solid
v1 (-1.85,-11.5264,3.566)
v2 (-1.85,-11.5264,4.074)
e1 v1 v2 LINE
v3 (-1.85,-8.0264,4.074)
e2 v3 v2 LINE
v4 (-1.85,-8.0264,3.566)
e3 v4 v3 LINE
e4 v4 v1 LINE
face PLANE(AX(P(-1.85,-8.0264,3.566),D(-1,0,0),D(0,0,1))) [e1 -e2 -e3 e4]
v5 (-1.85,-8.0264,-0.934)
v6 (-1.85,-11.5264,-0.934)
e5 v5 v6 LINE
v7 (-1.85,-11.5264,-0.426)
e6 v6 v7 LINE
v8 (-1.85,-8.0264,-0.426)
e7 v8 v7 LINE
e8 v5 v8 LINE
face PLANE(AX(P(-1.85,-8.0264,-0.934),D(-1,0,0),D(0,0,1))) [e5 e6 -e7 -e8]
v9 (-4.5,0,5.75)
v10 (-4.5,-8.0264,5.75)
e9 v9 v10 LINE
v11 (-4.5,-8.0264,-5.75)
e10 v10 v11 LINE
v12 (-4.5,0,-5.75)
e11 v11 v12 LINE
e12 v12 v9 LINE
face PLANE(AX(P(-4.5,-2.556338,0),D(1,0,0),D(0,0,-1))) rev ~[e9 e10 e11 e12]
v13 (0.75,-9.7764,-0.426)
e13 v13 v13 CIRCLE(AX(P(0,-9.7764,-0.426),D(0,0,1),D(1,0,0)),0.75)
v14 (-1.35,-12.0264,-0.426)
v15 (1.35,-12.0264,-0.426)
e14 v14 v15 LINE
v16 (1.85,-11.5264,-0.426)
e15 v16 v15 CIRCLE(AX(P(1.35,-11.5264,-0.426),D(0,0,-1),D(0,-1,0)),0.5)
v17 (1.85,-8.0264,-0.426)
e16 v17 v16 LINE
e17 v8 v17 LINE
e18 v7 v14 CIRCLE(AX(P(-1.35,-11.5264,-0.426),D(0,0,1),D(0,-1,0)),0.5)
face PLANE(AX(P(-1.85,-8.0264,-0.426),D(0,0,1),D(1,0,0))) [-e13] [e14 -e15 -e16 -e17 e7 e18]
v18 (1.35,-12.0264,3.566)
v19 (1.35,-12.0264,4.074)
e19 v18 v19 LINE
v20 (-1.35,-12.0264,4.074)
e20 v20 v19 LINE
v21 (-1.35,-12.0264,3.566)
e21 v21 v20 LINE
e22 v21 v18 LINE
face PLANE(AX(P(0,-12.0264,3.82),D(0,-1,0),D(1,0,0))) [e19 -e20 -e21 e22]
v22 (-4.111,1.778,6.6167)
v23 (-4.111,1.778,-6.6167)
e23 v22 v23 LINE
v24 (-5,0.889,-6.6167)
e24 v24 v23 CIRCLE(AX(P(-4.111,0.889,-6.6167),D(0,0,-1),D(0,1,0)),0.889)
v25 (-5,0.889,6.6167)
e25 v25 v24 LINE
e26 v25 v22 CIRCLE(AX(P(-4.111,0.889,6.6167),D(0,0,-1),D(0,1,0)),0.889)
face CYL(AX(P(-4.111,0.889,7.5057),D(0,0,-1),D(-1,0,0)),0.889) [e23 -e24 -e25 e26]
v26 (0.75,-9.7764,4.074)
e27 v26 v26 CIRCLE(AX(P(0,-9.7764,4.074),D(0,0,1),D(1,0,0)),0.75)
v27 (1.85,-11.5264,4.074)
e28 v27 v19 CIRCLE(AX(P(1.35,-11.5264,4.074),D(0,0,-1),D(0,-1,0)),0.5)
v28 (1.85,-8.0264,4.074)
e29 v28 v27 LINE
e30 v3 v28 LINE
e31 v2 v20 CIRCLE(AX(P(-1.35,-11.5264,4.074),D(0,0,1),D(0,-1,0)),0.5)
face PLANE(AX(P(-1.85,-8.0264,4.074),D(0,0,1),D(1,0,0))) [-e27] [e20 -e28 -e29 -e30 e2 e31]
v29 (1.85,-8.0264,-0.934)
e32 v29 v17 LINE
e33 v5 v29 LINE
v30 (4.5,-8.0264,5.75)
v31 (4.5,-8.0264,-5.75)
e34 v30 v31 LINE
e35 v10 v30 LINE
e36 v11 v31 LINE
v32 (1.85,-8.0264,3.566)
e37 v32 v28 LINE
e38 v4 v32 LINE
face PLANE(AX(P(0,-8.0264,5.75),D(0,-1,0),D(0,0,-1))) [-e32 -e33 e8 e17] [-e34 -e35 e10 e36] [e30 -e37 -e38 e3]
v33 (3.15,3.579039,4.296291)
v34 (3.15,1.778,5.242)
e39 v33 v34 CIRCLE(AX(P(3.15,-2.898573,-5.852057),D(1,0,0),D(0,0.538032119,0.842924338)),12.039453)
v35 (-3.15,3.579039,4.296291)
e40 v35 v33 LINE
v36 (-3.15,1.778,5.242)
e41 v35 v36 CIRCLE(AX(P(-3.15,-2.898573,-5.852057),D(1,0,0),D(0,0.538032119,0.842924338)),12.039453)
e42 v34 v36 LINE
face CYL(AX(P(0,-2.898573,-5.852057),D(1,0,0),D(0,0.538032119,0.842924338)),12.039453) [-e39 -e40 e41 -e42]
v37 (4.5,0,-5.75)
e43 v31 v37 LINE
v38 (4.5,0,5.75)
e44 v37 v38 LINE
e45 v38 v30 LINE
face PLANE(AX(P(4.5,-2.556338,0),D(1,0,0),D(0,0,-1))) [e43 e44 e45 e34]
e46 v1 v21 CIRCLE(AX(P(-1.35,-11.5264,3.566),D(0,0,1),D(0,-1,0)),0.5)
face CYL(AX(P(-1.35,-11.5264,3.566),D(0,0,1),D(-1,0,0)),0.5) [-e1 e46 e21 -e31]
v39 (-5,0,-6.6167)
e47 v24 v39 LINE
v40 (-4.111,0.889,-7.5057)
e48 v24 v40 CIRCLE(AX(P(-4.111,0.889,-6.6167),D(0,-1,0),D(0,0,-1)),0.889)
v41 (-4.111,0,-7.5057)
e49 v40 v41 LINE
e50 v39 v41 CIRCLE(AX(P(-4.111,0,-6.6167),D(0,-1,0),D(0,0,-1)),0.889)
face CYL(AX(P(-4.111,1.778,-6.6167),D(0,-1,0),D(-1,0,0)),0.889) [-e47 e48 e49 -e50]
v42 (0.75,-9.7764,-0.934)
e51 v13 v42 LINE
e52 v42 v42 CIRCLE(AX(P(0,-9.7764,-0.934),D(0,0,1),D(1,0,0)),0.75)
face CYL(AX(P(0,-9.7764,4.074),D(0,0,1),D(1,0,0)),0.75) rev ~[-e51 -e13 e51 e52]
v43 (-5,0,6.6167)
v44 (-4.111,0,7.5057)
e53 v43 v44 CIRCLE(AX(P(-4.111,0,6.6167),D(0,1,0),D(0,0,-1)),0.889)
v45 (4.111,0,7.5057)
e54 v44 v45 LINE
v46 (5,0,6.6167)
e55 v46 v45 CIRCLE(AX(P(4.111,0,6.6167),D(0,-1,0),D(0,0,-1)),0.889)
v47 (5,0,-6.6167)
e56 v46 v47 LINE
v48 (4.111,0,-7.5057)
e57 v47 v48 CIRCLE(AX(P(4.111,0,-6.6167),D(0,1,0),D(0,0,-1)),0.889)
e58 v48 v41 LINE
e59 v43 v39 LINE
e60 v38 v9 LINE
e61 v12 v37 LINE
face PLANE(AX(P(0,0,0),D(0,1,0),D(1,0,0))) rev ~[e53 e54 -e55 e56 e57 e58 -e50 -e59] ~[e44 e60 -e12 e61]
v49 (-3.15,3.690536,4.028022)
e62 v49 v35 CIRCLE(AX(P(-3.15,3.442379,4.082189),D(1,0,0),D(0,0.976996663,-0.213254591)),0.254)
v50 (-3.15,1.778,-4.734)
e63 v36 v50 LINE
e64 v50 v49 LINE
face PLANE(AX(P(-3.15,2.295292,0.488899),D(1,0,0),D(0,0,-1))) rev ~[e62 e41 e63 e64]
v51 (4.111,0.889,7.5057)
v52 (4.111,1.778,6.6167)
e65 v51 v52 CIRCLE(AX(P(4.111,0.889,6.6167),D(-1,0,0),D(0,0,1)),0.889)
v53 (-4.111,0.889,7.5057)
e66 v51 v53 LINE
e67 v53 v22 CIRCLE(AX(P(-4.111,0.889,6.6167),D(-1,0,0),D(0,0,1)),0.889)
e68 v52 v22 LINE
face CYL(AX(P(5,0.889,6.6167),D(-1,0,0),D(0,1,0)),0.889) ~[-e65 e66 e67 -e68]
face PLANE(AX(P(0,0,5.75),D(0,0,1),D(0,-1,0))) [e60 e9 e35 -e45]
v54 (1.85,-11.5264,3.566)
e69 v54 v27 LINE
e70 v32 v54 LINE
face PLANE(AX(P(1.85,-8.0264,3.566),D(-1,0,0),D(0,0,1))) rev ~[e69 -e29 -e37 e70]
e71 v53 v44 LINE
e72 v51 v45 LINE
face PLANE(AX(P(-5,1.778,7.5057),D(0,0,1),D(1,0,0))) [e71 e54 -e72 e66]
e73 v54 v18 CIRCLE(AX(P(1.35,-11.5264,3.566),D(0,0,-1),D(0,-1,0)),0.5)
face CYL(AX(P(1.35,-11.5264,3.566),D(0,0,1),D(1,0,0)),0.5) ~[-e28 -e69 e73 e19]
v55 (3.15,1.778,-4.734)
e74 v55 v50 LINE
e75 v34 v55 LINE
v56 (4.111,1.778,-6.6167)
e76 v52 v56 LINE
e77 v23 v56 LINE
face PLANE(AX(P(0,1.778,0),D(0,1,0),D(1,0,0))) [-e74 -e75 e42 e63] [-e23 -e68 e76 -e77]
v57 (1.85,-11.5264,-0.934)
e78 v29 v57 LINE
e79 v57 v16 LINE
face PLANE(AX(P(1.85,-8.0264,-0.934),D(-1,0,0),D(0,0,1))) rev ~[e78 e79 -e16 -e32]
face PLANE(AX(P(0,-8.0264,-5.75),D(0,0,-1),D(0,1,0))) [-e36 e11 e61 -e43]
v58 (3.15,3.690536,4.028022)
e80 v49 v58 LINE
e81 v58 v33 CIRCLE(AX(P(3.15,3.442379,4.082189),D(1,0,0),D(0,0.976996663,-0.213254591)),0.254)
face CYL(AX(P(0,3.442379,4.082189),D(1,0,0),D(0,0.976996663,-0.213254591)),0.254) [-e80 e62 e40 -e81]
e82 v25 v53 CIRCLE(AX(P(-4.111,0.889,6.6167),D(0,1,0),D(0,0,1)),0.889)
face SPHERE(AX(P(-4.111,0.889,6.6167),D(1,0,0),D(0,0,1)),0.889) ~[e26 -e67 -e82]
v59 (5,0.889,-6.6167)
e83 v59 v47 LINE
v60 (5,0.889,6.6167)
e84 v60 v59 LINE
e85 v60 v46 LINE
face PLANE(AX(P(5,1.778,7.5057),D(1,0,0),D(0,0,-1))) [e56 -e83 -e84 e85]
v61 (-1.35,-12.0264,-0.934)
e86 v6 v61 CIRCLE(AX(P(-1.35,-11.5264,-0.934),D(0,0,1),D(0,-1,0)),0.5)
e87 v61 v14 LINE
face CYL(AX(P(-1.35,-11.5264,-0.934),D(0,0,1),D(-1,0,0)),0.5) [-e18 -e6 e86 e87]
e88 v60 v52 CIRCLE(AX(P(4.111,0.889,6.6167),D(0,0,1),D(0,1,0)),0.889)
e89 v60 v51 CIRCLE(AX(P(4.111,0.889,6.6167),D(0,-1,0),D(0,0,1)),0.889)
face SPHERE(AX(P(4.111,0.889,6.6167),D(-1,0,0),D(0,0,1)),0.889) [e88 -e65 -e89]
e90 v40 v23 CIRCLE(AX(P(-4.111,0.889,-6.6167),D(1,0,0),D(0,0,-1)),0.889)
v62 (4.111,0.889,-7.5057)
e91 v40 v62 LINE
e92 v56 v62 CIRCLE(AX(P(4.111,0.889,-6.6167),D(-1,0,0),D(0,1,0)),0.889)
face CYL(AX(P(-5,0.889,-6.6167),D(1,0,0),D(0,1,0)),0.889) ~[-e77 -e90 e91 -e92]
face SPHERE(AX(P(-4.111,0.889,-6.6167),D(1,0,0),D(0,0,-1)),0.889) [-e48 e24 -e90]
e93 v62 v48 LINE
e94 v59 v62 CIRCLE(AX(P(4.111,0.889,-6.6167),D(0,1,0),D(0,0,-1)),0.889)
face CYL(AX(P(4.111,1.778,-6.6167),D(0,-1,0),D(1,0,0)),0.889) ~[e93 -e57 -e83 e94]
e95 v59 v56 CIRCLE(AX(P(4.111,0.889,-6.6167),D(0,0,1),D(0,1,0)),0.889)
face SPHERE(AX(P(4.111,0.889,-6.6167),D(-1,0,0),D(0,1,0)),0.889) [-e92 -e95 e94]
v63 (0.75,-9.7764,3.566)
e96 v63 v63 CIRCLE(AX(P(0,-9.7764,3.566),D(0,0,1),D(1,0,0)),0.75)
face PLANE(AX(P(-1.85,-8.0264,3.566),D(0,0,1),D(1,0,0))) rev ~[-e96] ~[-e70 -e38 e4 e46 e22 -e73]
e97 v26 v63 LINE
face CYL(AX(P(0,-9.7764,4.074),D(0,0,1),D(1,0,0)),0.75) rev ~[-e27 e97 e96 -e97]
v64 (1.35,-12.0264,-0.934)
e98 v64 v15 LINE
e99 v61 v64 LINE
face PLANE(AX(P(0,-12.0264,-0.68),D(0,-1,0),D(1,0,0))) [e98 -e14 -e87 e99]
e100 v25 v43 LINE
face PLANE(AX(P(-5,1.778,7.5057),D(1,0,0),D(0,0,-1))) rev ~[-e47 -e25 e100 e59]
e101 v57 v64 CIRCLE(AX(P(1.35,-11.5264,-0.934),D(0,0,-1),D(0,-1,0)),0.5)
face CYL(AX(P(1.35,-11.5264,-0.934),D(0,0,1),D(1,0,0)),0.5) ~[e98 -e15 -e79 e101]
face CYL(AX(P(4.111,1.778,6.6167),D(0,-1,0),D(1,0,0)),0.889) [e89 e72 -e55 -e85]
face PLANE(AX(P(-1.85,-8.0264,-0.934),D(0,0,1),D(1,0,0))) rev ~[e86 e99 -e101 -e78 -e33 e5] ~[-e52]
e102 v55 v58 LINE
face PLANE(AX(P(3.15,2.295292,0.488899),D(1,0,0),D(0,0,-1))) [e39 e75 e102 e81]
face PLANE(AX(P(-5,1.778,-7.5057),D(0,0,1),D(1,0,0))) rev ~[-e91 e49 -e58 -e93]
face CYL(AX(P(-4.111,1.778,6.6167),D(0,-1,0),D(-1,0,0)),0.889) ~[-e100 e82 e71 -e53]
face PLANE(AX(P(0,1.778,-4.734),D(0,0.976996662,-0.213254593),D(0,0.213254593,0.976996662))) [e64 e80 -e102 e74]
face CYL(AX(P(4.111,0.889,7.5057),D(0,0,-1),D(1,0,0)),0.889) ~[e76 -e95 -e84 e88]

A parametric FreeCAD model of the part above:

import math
import FreeCAD as App
import Part
import Sketcher


def edges_at(feature, points):
    """Names of the edges that pass closest to the given points."""
    edges = feature.Shape.Edges
    near = lambda p: min(range(len(edges)), key=lambda i: edges[i].distToShape(Part.Vertex(*p))[0])
    return sorted({f"Edge{near(p) + 1}" for p in points})

doc = App.newDocument("Part")
body = doc.addObject("PartDesign::Body", "Body")

# Sketch on YZ plane
sketch1 = body.newObject("Sketcher::SketchObject", "Sketch")
sketch1.AttachmentSupport = (doc.getObject("YZ_Plane"), [""])
sketch1.MapMode = "FlatFace"
sketch1.addGeometry([
    Part.LineSegment(App.Vector(0, 5.8, 0), App.Vector(-8, 5.8, 0)),  # 0
    Part.LineSegment(App.Vector(-8, 5.8, 0), App.Vector(-8, -5.8, 0)),  # 1
    Part.LineSegment(App.Vector(-8, -5.8, 0), App.Vector(0, -5.8, 0)),  # 2
    Part.LineSegment(App.Vector(0, -5.8, 0), App.Vector(0, -7.5, 0)),  # 3
    Part.LineSegment(App.Vector(0, -7.5, 0), App.Vector(1.8, -7.5, 0)),  # 4
    Part.LineSegment(App.Vector(1.8, -7.5, 0), App.Vector(1.8, 7.5, 0)),  # 5
    Part.LineSegment(App.Vector(1.8, 7.5, 0), App.Vector(0, 7.5, 0)),  # 6
    Part.LineSegment(App.Vector(0, 7.5, 0), App.Vector(0, 5.8, 0)),  # 7
], False)
sketch1.addConstraint([
    Sketcher.Constraint("Coincident", 0, 2, 1, 1),
    Sketcher.Constraint("Coincident", 1, 2, 2, 1),
    Sketcher.Constraint("Coincident", 2, 2, 3, 1),
    Sketcher.Constraint("Coincident", 3, 2, 4, 1),
    Sketcher.Constraint("Coincident", 4, 2, 5, 1),
    Sketcher.Constraint("Coincident", 5, 2, 6, 1),
    Sketcher.Constraint("Coincident", 6, 2, 7, 1),
    Sketcher.Constraint("Coincident", 7, 2, 0, 1),
    Sketcher.Constraint("Horizontal", 0),
    Sketcher.Constraint("Vertical", 1),
    Sketcher.Constraint("Horizontal", 2),
    Sketcher.Constraint("Vertical", 3),
    Sketcher.Constraint("Horizontal", 4),
    Sketcher.Constraint("Vertical", 5),
    Sketcher.Constraint("Horizontal", 6),
    Sketcher.Constraint("Vertical", 7),
    Sketcher.Constraint("Symmetric", 3, 2, 6, 2, -1, 1),
    Sketcher.Constraint("Symmetric", 2, 2, 7, 2, -1),
    Sketcher.Constraint("DistanceY", 1, 2, 1, 1, 11.5),
    Sketcher.Constraint("DistanceX", 4, 1, 4, 2, 1.778),
    Sketcher.Constraint("DistanceX", 0, 2, 0, 1, 8.0264),
    Sketcher.Constraint("DistanceY", 3, 2, 3, 1, 1.7557),
])
pad1 = body.newObject("PartDesign::Pad", "Pad")
pad1.Profile = sketch1
pad1.Length = 9
pad1.Midplane = True

# Sketch on XZ plane
sketch2 = body.newObject("Sketcher::SketchObject", "Sketch001")
sketch2.AttachmentSupport = (doc.getObject("XZ_Plane"), [""])
sketch2.MapMode = "FlatFace"
sketch2.AttachmentOffset = App.Placement(App.Vector(0, 0, -1.778), App.Rotation())
sketch2.addGeometry([
    Part.LineSegment(App.Vector(-5, -8, 0), App.Vector(-5, 8, 0)),
    Part.LineSegment(App.Vector(-5, 8, 0), App.Vector(5, 8, 0)),
    Part.LineSegment(App.Vector(5, 8, 0), App.Vector(5, -8, 0)),
    Part.LineSegment(App.Vector(5, -8, 0), App.Vector(-5, -8, 0)),
], False)
sketch2.addConstraint([
    Sketcher.Constraint("Coincident", 0, 2, 1, 1),
    Sketcher.Constraint("Coincident", 1, 2, 2, 1),
    Sketcher.Constraint("Coincident", 2, 2, 3, 1),
    Sketcher.Constraint("Coincident", 3, 2, 0, 1),
    Sketcher.Constraint("Vertical", 0),
    Sketcher.Constraint("Horizontal", 1),
    Sketcher.Constraint("Vertical", 2),
    Sketcher.Constraint("Horizontal", 3),
    Sketcher.Constraint("Symmetric", 0, 2, 2, 2, -1, 1),
    Sketcher.Constraint("DistanceX", 1, 1, 1, 2, 10.0),
    Sketcher.Constraint("DistanceY", 0, 1, 0, 2, 15.0114),
])
pad2 = body.newObject("PartDesign::Pad", "Pad001")
pad2.Profile = sketch2
pad2.Length = 1.778
doc.recompute()

fillet = body.newObject("PartDesign::Fillet", "Fillet")
fillet.Base = (pad2, edges_at(pad2, [
    (0, 1.778, 7.506),
    (0, 1.778, -7.506),
    (5, 0.889, 7.506),
    (5, 1.778, 0),
    (5, 0.889, -7.506),
    (-5, 0.889, 7.506),
    (-5, 0.889, -7.506),
    (-5, 1.778, 0),
]))
fillet.Radius = 0.889

# Sketch on XZ plane
sketch3 = body.newObject("Sketcher::SketchObject", "Sketch002")
sketch3.AttachmentSupport = (doc.getObject("XZ_Plane"), [""])
sketch3.MapMode = "FlatFace"
sketch3.AttachmentOffset = App.Placement(App.Vector(0, 0, 8.0264), App.Rotation())
sketch3.addGeometry([
    Part.LineSegment(App.Vector(-1.9, 4.1, 0), App.Vector(-1.9, 3.6, 0)),  # 0
    Part.LineSegment(App.Vector(-1.9, 3.6, 0), App.Vector(1.9, 3.6, 0)),  # 1
    Part.LineSegment(App.Vector(1.9, 3.6, 0), App.Vector(1.9, 4.1, 0)),  # 2
    Part.LineSegment(App.Vector(1.9, 4.1, 0), App.Vector(-1.9, 4.1, 0)),  # 3
    Part.LineSegment(App.Vector(-1.9, -0.4, 0), App.Vector(-1.9, -0.9, 0)),  # 4
    Part.LineSegment(App.Vector(-1.9, -0.9, 0), App.Vector(1.9, -0.9, 0)),  # 5
    Part.LineSegment(App.Vector(1.9, -0.9, 0), App.Vector(1.9, -0.4, 0)),  # 6
    Part.LineSegment(App.Vector(1.9, -0.4, 0), App.Vector(-1.9, -0.4, 0)),  # 7
], False)
sketch3.addConstraint([
    Sketcher.Constraint("Coincident", 0, 2, 1, 1),
    Sketcher.Constraint("Coincident", 1, 2, 2, 1),
    Sketcher.Constraint("Coincident", 2, 2, 3, 1),
    Sketcher.Constraint("Coincident", 3, 2, 0, 1),
    Sketcher.Constraint("Coincident", 4, 2, 5, 1),
    Sketcher.Constraint("Coincident", 5, 2, 6, 1),
    Sketcher.Constraint("Coincident", 6, 2, 7, 1),
    Sketcher.Constraint("Coincident", 7, 2, 4, 1),
    Sketcher.Constraint("Vertical", 0),
    Sketcher.Constraint("Horizontal", 1),
    Sketcher.Constraint("Vertical", 2),
    Sketcher.Constraint("Horizontal", 3),
    Sketcher.Constraint("Vertical", 4),
    Sketcher.Constraint("Horizontal", 5),
    Sketcher.Constraint("Vertical", 6),
    Sketcher.Constraint("Horizontal", 7),
    Sketcher.Constraint("Vertical", 3, 2, 4, 2),
    Sketcher.Constraint("Vertical", 2, 2, 5, 2),
    Sketcher.Constraint("Equal", 2, 4),
    Sketcher.Constraint("DistanceX", 1, 1, 1, 2, 3.7),
    Sketcher.Constraint("DistanceY", 4, 2, 0, 2, 4.5),
    Sketcher.Constraint("DistanceY", 0, 2, 0, 1, 0.508),
    Sketcher.Constraint("DistanceX", 0, 2, -1, 1, 1.85),
    Sketcher.Constraint("DistanceY", -1, 1, 0, 2, 3.566),
])
pad3 = body.newObject("PartDesign::Pad", "Pad002")
pad3.Profile = sketch3
pad3.Length = 4
doc.recompute()

fillet2 = body.newObject("PartDesign::Fillet", "Fillet001")
fillet2.Base = (pad3, edges_at(pad3, [
    (1.85, -12.026, 3.82),
    (-1.85, -12.026, 3.82),
    (1.85, -12.026, -0.68),
    (-1.85, -12.026, -0.68),
]))
fillet2.Radius = 0.5

# Sketch on XY plane
sketch4 = body.newObject("Sketcher::SketchObject", "Sketch003")
sketch4.AttachmentSupport = (doc.getObject("XY_Plane"), [""])
sketch4.MapMode = "FlatFace"
sketch4.AttachmentOffset = App.Placement(App.Vector(0, 0, 4.074), App.Rotation())
sketch4.addGeometry(Part.Circle(App.Vector(0, -9.8, 0), App.Vector(0, 0, 1), 0.8), False)
sketch4.addConstraint([
    Sketcher.Constraint("PointOnObject", 0, 3, -2),
    Sketcher.Constraint("Diameter", 0, 1.5),
    Sketcher.Constraint("DistanceY", 0, 3, -1, 1, 9.7764),
])
pocket1 = body.newObject("PartDesign::Pocket", "Pocket")
pocket1.Profile = sketch4
pocket1.Type = "ThroughAll"

# Sketch on YZ plane
sketch5 = body.newObject("Sketcher::SketchObject", "Sketch004")
sketch5.AttachmentSupport = (doc.getObject("YZ_Plane"), [""])
sketch5.MapMode = "FlatFace"
sketch5.addGeometry([
    Part.LineSegment(App.Vector(1.78, -4.73, 0), App.Vector(3.69, 4.03, 0)),
    Part.ArcOfCircle(Part.Circle(App.Vector(3.44, 4.08, 0), App.Vector(0, 0, 1), 0.25), math.radians(-12), math.radians(57)),
    Part.ArcOfCircle(Part.Circle(App.Vector(-2.9, -5.85, 0), App.Vector(0, 0, 1), 12.04), math.radians(57.45), math.radians(67.14)),
    Part.LineSegment(App.Vector(1.78, 5.24, 0), App.Vector(1.78, -4.73, 0)),
], False)
sketch5.addConstraint([
    Sketcher.Constraint("Tangent", 0, 2, 1, 1),
    Sketcher.Constraint("Tangent", 1, 2, 2, 1),
    Sketcher.Constraint("Coincident", 2, 2, 3, 1),
    Sketcher.Constraint("Coincident", 3, 2, 0, 1),
    Sketcher.Constraint("Vertical", 3),
    Sketcher.Constraint("Radius", 1, 0.254),
    Sketcher.Constraint("DistanceY", 3, 2, 3, 1, 9.976),
    Sketcher.Constraint("DistanceX", -1, 1, 2, 2, 1.778),
    Sketcher.Constraint("DistanceY", -1, 1, 2, 2, 5.242),
    Sketcher.Constraint("Radius", 2, 12.039453),
    Sketcher.Constraint("DistanceX", -1, 1, 1, 3, 3.442379),
    Sketcher.Constraint("DistanceY", -1, 1, 1, 3, 4.082189),
])
pad4 = body.newObject("PartDesign::Pad", "Pad003")
pad4.Profile = sketch5
pad4.Length = 6.3
pad4.Midplane = True

doc.recompute()
